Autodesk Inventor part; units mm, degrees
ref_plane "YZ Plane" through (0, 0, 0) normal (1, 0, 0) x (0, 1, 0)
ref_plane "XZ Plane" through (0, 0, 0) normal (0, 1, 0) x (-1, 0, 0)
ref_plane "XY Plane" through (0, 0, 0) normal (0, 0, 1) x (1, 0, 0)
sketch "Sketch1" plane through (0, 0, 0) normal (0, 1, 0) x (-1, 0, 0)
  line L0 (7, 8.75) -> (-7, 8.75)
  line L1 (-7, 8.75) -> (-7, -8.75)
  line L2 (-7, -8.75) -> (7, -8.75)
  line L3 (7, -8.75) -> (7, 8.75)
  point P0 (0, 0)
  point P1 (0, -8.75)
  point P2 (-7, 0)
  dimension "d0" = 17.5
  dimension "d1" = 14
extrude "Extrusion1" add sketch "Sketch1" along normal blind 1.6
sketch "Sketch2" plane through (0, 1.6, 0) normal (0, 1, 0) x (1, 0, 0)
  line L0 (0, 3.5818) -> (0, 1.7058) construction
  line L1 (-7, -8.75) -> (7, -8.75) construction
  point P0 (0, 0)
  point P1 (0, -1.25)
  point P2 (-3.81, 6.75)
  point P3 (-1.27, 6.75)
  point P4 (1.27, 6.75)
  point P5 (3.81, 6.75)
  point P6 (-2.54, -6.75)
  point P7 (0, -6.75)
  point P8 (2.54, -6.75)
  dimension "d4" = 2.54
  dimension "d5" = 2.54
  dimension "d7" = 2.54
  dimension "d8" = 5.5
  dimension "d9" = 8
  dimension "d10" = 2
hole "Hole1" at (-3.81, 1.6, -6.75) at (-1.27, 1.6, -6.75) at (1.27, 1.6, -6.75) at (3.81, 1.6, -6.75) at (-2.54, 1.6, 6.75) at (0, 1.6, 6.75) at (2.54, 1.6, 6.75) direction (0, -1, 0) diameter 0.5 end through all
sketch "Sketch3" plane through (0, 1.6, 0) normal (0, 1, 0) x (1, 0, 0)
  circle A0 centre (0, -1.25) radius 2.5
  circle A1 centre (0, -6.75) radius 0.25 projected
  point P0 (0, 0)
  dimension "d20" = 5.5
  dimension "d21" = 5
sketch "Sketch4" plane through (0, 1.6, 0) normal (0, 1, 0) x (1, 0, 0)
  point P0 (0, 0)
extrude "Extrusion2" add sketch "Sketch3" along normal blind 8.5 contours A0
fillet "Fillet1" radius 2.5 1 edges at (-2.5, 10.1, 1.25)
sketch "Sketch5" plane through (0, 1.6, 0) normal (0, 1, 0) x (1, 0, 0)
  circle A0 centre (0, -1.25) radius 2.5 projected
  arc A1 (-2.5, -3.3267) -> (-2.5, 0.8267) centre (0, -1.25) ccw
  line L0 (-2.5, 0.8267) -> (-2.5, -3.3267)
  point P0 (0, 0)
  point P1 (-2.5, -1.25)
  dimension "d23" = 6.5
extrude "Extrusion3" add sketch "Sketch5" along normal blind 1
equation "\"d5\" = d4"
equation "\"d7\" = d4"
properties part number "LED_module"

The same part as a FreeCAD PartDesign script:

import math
import FreeCAD as App
import Part
import Sketcher

V = App.Vector


def edges_at(feature, points):
    """Names of the edges that pass closest to the given points."""
    edges = feature.Shape.Edges
    near = lambda p: min(range(len(edges)), key=lambda i: edges[i].distToShape(Part.Vertex(*p))[0])
    return sorted({f"Edge{near(p) + 1}" for p in points})

doc = App.newDocument("Part")
body = doc.addObject("PartDesign::Body", "Body")

sketch1 = doc.addObject("Sketcher::SketchObject", "Sketch")
body.addObject(sketch1)
sketch1.AttachmentSupport = (doc.XZ_Plane, [""])
sketch1.MapMode = "FlatFace"
sketch1.addGeometry([
    Part.LineSegment(V(-7, -9, 0), V(-7, 9, 0)),
    Part.LineSegment(V(-7, 9, 0), V(7, 9, 0)),
    Part.LineSegment(V(7, 9, 0), V(7, -9, 0)),
    Part.LineSegment(V(7, -9, 0), V(-7, -9, 0)),
], False)
sketch1.addConstraint([
    Sketcher.Constraint("Coincident", 0, 2, 1, 1),
    Sketcher.Constraint("Coincident", 1, 2, 2, 1),
    Sketcher.Constraint("Coincident", 2, 2, 3, 1),
    Sketcher.Constraint("Coincident", 3, 2, 0, 1),
    Sketcher.Constraint("Vertical", 0),
    Sketcher.Constraint("Horizontal", 1),
    Sketcher.Constraint("Vertical", 2),
    Sketcher.Constraint("Horizontal", 3),
    Sketcher.Constraint("Symmetric", 0, 2, 2, 2, -1, 1),
    Sketcher.Constraint("DistanceX", 1, 1, 1, 2, 14.0),
    Sketcher.Constraint("DistanceY", 0, 1, 0, 2, 17.5),
])
pad1 = doc.addObject("PartDesign::Pad", "Pad")
body.addObject(pad1)
pad1.Profile = sketch1
pad1.Length = 1.6
pad1.Reversed = True

sketch2 = doc.addObject("Sketcher::SketchObject", "Sketch001")
body.addObject(sketch2)
sketch2.AttachmentSupport = (doc.XZ_Plane, [""])
sketch2.MapMode = "FlatFace"
sketch2.AttachmentOffset = App.Placement(V(0, 0, -1.6), App.Rotation())
sketch2.addGeometry([
    Part.Circle(V(-3.81, -6.75, 0), V(0, 0, 1), 0.25),
    Part.Circle(V(-1.27, -6.75, 0), V(0, 0, 1), 0.25),
    Part.Circle(V(1.27, -6.75, 0), V(0, 0, 1), 0.25),
    Part.Circle(V(3.81, -6.75, 0), V(0, 0, 1), 0.25),
    Part.Circle(V(-2.54, 6.75, 0), V(0, 0, 1), 0.25),
    Part.Circle(V(0, 6.75, 0), V(0, 0, 1), 0.25),
    Part.Circle(V(2.54, 6.75, 0), V(0, 0, 1), 0.25),
], False)
sketch2.addConstraint([
    Sketcher.Constraint("Equal", 0, 1),
    Sketcher.Constraint("Equal", 1, 2),
    Sketcher.Constraint("Equal", 2, 3),
    Sketcher.Constraint("Equal", 3, 4),
    Sketcher.Constraint("Equal", 4, 5),
    Sketcher.Constraint("Equal", 5, 6),
    Sketcher.Constraint("Symmetric", 1, 3, 2, 3, -2),
    Sketcher.Constraint("Symmetric", 0, 3, 3, 3, -2),
    Sketcher.Constraint("Symmetric", 4, 3, 6, 3, -2),
    Sketcher.Constraint("PointOnObject", 5, 3, -2),
    Sketcher.Constraint("Horizontal", 0, 3, 1, 3),
    Sketcher.Constraint("Horizontal", 4, 3, 5, 3),
    Sketcher.Constraint("Diameter", 0, 0.5),
    Sketcher.Constraint("DistanceY", 0, 3, 4, 3, 13.5),
    Sketcher.Constraint("DistanceX", 0, 3, -1, 1, 3.81),
    Sketcher.Constraint("DistanceY", 0, 3, -1, 1, 6.75),
    Sketcher.Constraint("DistanceX", 1, 3, -1, 1, 1.27),
    Sketcher.Constraint("DistanceX", 4, 3, -1, 1, 2.54),
])
doc.recompute()
hole = doc.addObject("PartDesign::Hole", "Hole")
body.addObject(hole)
hole.Profile = sketch2
hole.ThreadType = "None"
hole.Diameter = 0.5
hole.DepthType = "ThroughAll"
hole.Reversed = True

sketch3 = doc.addObject("Sketcher::SketchObject", "Sketch002")
body.addObject(sketch3)
sketch3.AttachmentSupport = (doc.XZ_Plane, [""])
sketch3.MapMode = "FlatFace"
sketch3.AttachmentOffset = App.Placement(V(0, 0, -1.6), App.Rotation())
sketch3.addGeometry(Part.Circle(V(0, 1.2, 0), V(0, 0, 1), 2.5), False)
sketch3.addConstraint([
    Sketcher.Constraint("PointOnObject", 0, 3, -2),
    Sketcher.Constraint("Diameter", 0, 5.0),
    Sketcher.Constraint("DistanceY", -1, 1, 0, 3, 1.25),
])
pad2 = doc.addObject("PartDesign::Pad", "Pad001")
body.addObject(pad2)
pad2.Profile = sketch3
pad2.Length = 8.5
pad2.Reversed = True
doc.recompute()

fillet = doc.addObject("PartDesign::Fillet", "Fillet")
body.addObject(fillet)
fillet.Base = (pad2, edges_at(pad2, [(-2.5, 10.1, 1.25)]))
fillet.Radius = 2.5

sketch4 = doc.addObject("Sketcher::SketchObject", "Sketch003")
body.addObject(sketch4)
sketch4.AttachmentSupport = (doc.XZ_Plane, [""])
sketch4.MapMode = "FlatFace"
sketch4.AttachmentOffset = App.Placement(V(0, 0, -1.6), App.Rotation())
sketch4.addGeometry([
    Part.LineSegment(V(-2.5, -0.8, 0), V(-2.5, 1.2, 0)),
    Part.LineSegment(V(-2.5, 1.2, 0), V(-2.5, 3.3, 0)),
    Part.ArcOfCircle(Part.Circle(V(0, 1.2, 0), V(0, 0, 1), 3.3), math.radians(-140), math.radians(140)),
    Part.Circle(V(0, 1.2, 0), V(0, 0, 1), 2.5),
], False)
sketch4.addConstraint([
    Sketcher.Constraint("Coincident", 0, 2, 1, 1),
    Sketcher.Constraint("Coincident", 1, 2, 2, 2),
    Sketcher.Constraint("Coincident", 2, 1, 0, 1),
    Sketcher.Constraint("Vertical", 0),
    Sketcher.Constraint("Vertical", 1),
    Sketcher.Constraint("Coincident", 3, 3, 2, 3),
    Sketcher.Constraint("PointOnObject", 2, 3, -2),
    Sketcher.Constraint("Horizontal", 3, 3, 0, 2),
    Sketcher.Constraint("Radius", 2, 3.25),
    Sketcher.Constraint("Diameter", 3, 5.0),
    Sketcher.Constraint("DistanceX", 0, 2, -1, 1, 2.5),
    Sketcher.Constraint("DistanceY", -1, 1, 2, 3, 1.25),
])
pad3 = doc.addObject("PartDesign::Pad", "Pad002")
body.addObject(pad3)
pad3.Profile = sketch4
pad3.Length = 1
pad3.Reversed = True

doc.recompute()
